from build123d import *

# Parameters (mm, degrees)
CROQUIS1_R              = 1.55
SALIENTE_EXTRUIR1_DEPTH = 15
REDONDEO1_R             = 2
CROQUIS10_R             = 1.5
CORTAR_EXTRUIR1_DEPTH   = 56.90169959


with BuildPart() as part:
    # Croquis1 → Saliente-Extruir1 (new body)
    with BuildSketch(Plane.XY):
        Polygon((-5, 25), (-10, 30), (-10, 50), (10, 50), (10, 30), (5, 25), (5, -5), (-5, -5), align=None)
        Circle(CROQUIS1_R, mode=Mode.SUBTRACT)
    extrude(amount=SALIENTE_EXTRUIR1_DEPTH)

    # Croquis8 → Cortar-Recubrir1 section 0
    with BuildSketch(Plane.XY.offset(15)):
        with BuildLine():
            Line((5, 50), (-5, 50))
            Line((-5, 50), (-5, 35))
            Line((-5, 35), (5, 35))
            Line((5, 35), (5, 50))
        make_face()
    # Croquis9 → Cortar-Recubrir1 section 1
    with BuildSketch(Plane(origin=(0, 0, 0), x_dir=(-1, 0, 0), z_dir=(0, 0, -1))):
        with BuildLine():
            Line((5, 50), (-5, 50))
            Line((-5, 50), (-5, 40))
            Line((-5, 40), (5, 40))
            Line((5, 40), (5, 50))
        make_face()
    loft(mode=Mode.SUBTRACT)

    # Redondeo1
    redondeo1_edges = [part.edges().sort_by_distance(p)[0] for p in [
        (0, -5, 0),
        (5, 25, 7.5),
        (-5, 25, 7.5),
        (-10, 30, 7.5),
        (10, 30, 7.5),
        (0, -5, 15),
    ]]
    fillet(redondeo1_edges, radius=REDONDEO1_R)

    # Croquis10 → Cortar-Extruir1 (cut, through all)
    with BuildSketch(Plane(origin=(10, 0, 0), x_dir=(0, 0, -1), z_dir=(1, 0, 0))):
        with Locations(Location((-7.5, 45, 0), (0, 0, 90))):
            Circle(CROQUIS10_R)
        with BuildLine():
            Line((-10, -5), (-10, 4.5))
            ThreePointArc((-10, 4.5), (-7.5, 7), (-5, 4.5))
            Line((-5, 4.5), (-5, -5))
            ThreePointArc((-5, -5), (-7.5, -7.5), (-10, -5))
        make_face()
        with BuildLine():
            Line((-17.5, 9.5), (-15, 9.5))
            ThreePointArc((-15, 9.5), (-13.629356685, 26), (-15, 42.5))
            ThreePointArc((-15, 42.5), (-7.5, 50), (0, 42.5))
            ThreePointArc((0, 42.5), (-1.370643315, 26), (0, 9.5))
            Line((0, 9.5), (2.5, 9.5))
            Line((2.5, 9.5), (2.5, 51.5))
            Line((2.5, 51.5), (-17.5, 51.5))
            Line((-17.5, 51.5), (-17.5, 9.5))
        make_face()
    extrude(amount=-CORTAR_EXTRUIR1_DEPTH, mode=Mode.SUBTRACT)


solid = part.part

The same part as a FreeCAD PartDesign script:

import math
import FreeCAD as App
import Part
import Sketcher
Q = App.Units.Quantity


def edges_at(feature, points):
    """Names of the edges that pass closest to the given points."""
    edges = feature.Shape.Edges
    near = lambda p: min(range(len(edges)), key=lambda i: edges[i].distToShape(Part.Vertex(*p))[0])
    return sorted({f"Edge{near(p) + 1}" for p in points})


def add_polygon(sketch, points):
    """Adds a closed chain of lines whose ends are joined by coincident constraints."""
    first, n = sketch.GeometryCount, len(points)
    for a, b in zip(points, points[1:] + points[:1]):
        sketch.addGeometry(Part.LineSegment(App.Vector(*a, 0), App.Vector(*b, 0)), False)
    for i in range(n):
        sketch.addConstraint(Sketcher.Constraint("Coincident", first + i, 2, first + (i + 1) % n, 1))

doc = App.newDocument("Part")
body = doc.addObject("PartDesign::Body", "Body")

sketch1 = body.newObject("Sketcher::SketchObject", "Sketch")
sketch1.AttachmentSupport = (doc.getObject("XY_Plane"), [""])
sketch1.MapMode = "FlatFace"
add_polygon(sketch1, [(-10, 30), (-5, 25), (-5, -5), (5, -5), (5, 25), (10, 30), (10, 50), (-10, 50)])
sketch1.addGeometry(Part.Circle(App.Vector(0, 0, 0), App.Vector(0, 0, 1), 1.6), False)
sketch1.addConstraint([
    Sketcher.Constraint("Vertical", 1),
    Sketcher.Constraint("Horizontal", 2),
    Sketcher.Constraint("Vertical", 3),
    Sketcher.Constraint("Vertical", 5),
    Sketcher.Constraint("Horizontal", 6),
    Sketcher.Constraint("Vertical", 7),
    Sketcher.Constraint("Coincident", 8, 3, -1, 1),
    Sketcher.Constraint("Symmetric", 0, 2, 3, 2, -2),
    Sketcher.Constraint("Symmetric", 4, 2, 7, 2, -2),
    Sketcher.Constraint("Perpendicular", 0, 4),
    Sketcher.Constraint("Equal", 6, 5),
    Sketcher.Constraint("Diameter", 8, Q("3.1 mm")),
    Sketcher.Constraint("DistanceX", 2, 1, 2, 2, Q("10 mm")),
    Sketcher.Constraint("DistanceX", 6, 2, 6, 1, Q("20 mm")),
    Sketcher.Constraint("DistanceY", 1, 2, 1, 1, Q("30 mm")),
    Sketcher.Constraint("DistanceY", -1, 1, 0, 2, Q("25 mm")),
])
pad1 = body.newObject("PartDesign::Pad", "Pad")
pad1.Profile = sketch1
pad1.Length = 15

sketch2 = body.newObject("Sketcher::SketchObject", "Sketch001")
sketch2.AttachmentSupport = (doc.getObject("XY_Plane"), [""])
sketch2.MapMode = "FlatFace"
sketch2.AttachmentOffset = App.Placement(App.Vector(0, 0, 15), App.Rotation())
add_polygon(sketch2, [(5, 50), (-5, 50), (-5, 35), (5, 35)])
sketch2.addConstraint([
    Sketcher.Constraint("Horizontal", 0),
    Sketcher.Constraint("Vertical", 1),
    Sketcher.Constraint("Horizontal", 2),
    Sketcher.Constraint("Vertical", 3),
    Sketcher.Constraint("DistanceX", 0, 2, 0, 1, Q("10 mm")),
    Sketcher.Constraint("DistanceY", 1, 2, 1, 1, Q("15 mm")),
    Sketcher.Constraint("DistanceX", 0, 2, -1, 1, Q("5 mm")),
    Sketcher.Constraint("DistanceY", -1, 1, 0, 2, Q("50 mm")),
])

sketch3 = body.newObject("Sketcher::SketchObject", "Sketch002")
sketch3.AttachmentSupport = (doc.getObject("XY_Plane"), [""])
sketch3.MapMode = "FlatFace"
add_polygon(sketch3, [(-5, 50), (5, 50), (5, 40), (-5, 40)])
sketch3.addConstraint([
    Sketcher.Constraint("Horizontal", 0),
    Sketcher.Constraint("Vertical", 1),
    Sketcher.Constraint("Horizontal", 2),
    Sketcher.Constraint("Vertical", 3),
    Sketcher.Constraint("Equal", 2, 1),
    Sketcher.Constraint("DistanceX", 0, 1, 0, 2, Q("10 mm")),
    Sketcher.Constraint("DistanceX", -1, 1, 0, 2, Q("5 mm")),
    Sketcher.Constraint("DistanceY", -1, 1, 0, 2, Q("50 mm")),
])

subtractiveloft = body.newObject("PartDesign::SubtractiveLoft", "SubtractiveLoft")
subtractiveloft.Profile = sketch2
subtractiveloft.Sections = [sketch3]
doc.recompute()

fillet = body.newObject("PartDesign::Fillet", "Fillet")
fillet.Base = (subtractiveloft, edges_at(subtractiveloft, [
    (0, -5, 0),
    (5, 25, 7.5),
    (-5, 25, 7.5),
    (-10, 30, 7.5),
    (10, 30, 7.5),
    (0, -5, 15),
]))
fillet.Radius = 2

sketch4 = body.newObject("Sketcher::SketchObject", "Sketch003")
sketch4.AttachmentSupport = (doc.getObject("YZ_Plane"), [""])
sketch4.MapMode = "FlatFace"
sketch4.AttachmentOffset = App.Placement(App.Vector(0, 0, 10), App.Rotation())
sketch4.addGeometry([
    Part.Circle(App.Vector(45, 7.5, 0), App.Vector(0, 0, 1), 1.5),
    Part.LineSegment(App.Vector(4.5, 10, 0), App.Vector(-5, 10, 0)),
    Part.ArcOfCircle(Part.Circle(App.Vector(-5, 7.5, 0), App.Vector(0, 0, 1), 2.5), math.radians(90), math.radians(270)),
    Part.LineSegment(App.Vector(-5, 5, 0), App.Vector(4.5, 5, 0)),
    Part.ArcOfCircle(Part.Circle(App.Vector(4.5, 7.5, 0), App.Vector(0, 0, 1), 2.5), math.radians(-90), math.radians(90)),
    Part.LineSegment(App.Vector(9.5, 17.5, 0), App.Vector(9.5, 15, 0)),
    Part.ArcOfCircle(Part.Circle(App.Vector(26, 113.6, 0), App.Vector(0, 0, 1), 100), math.radians(-99.5), math.radians(-80.5)),
    Part.ArcOfCircle(Part.Circle(App.Vector(42.5, 7.5, 0), App.Vector(0, 0, 1), 7.5), math.radians(-90), math.radians(90)),
    Part.ArcOfCircle(Part.Circle(App.Vector(26, -98.6, 0), App.Vector(0, 0, 1), 100), math.radians(80.5), math.radians(99.5)),
    Part.LineSegment(App.Vector(9.5, 0, 0), App.Vector(9.5, -2.5, 0)),
    Part.LineSegment(App.Vector(9.5, -2.5, 0), App.Vector(51.5, -2.5, 0)),
    Part.LineSegment(App.Vector(51.5, -2.5, 0), App.Vector(51.5, 17.5, 0)),
    Part.LineSegment(App.Vector(51.5, 17.5, 0), App.Vector(9.5, 17.5, 0)),
], False)
sketch4.addConstraint([
    Sketcher.Constraint("Tangent", 1, 2, 2, 1),
    Sketcher.Constraint("Tangent", 2, 2, 3, 1),
    Sketcher.Constraint("Tangent", 3, 2, 4, 1),
    Sketcher.Constraint("Tangent", 4, 2, 1, 1),
    Sketcher.Constraint("Coincident", 5, 2, 6, 1),
    Sketcher.Constraint("Coincident", 6, 2, 7, 2),
    Sketcher.Constraint("Coincident", 7, 1, 8, 1),
    Sketcher.Constraint("Coincident", 8, 2, 9, 1),
    Sketcher.Constraint("Coincident", 9, 2, 10, 1),
    Sketcher.Constraint("Coincident", 10, 2, 11, 1),
    Sketcher.Constraint("Coincident", 11, 2, 12, 1),
    Sketcher.Constraint("Coincident", 12, 2, 5, 1),
    Sketcher.Constraint("Horizontal", 1),
    Sketcher.Constraint("Horizontal", 3),
    Sketcher.Constraint("Vertical", 5),
    Sketcher.Constraint("Vertical", 9),
    Sketcher.Constraint("Horizontal", 10),
    Sketcher.Constraint("Vertical", 11),
    Sketcher.Constraint("Horizontal", 12),
    Sketcher.Constraint("Equal", 6, 8),
    Sketcher.Constraint("PointOnObject", 7, 1, -1),
    Sketcher.Constraint("PointOnObject", 8, 2, -1),
    Sketcher.Constraint("Horizontal", 0, 3, 2, 3),
    Sketcher.Constraint("Horizontal", 4, 3, 7, 3),
    Sketcher.Constraint("Horizontal", 5, 2, 6, 2),
    Sketcher.Constraint("Vertical", 6, 3, 8, 3),
    Sketcher.Constraint("Vertical", 7, 3, 6, 2),
    Sketcher.Constraint("Vertical", 6, 2, 7, 1),
    Sketcher.Constraint("Equal", 5, 9),
    Sketcher.Constraint("Diameter", 0, Q("3 mm")),
    Sketcher.Constraint("Radius", 6, Q("100 mm")),
    Sketcher.Constraint("Radius", 2, Q("2.5 mm")),
    Sketcher.Constraint("Radius", 7, Q("7.5 mm")),
    Sketcher.Constraint("DistanceX", 10, 1, 10, 2, Q("42 mm")),
    Sketcher.Constraint("DistanceY", 11, 1, 11, 2, Q("20 mm")),
    Sketcher.Constraint("DistanceX", 1, 2, 1, 1, Q("9.5 mm")),
    Sketcher.Constraint("DistanceX", -1, 1, 0, 3, Q("45 mm")),
    Sketcher.Constraint("DistanceX", 2, 3, -1, 1, Q("5 mm")),
    Sketcher.Constraint("DistanceX", -1, 1, 6, 3, Q("26 mm")),
    Sketcher.Constraint("DistanceX", 4, 3, 7, 3, Q("38 mm")),
])
pocket1 = body.newObject("PartDesign::Pocket", "Pocket")
pocket1.Profile = sketch4
pocket1.Type = "ThroughAll"

doc.recompute()
